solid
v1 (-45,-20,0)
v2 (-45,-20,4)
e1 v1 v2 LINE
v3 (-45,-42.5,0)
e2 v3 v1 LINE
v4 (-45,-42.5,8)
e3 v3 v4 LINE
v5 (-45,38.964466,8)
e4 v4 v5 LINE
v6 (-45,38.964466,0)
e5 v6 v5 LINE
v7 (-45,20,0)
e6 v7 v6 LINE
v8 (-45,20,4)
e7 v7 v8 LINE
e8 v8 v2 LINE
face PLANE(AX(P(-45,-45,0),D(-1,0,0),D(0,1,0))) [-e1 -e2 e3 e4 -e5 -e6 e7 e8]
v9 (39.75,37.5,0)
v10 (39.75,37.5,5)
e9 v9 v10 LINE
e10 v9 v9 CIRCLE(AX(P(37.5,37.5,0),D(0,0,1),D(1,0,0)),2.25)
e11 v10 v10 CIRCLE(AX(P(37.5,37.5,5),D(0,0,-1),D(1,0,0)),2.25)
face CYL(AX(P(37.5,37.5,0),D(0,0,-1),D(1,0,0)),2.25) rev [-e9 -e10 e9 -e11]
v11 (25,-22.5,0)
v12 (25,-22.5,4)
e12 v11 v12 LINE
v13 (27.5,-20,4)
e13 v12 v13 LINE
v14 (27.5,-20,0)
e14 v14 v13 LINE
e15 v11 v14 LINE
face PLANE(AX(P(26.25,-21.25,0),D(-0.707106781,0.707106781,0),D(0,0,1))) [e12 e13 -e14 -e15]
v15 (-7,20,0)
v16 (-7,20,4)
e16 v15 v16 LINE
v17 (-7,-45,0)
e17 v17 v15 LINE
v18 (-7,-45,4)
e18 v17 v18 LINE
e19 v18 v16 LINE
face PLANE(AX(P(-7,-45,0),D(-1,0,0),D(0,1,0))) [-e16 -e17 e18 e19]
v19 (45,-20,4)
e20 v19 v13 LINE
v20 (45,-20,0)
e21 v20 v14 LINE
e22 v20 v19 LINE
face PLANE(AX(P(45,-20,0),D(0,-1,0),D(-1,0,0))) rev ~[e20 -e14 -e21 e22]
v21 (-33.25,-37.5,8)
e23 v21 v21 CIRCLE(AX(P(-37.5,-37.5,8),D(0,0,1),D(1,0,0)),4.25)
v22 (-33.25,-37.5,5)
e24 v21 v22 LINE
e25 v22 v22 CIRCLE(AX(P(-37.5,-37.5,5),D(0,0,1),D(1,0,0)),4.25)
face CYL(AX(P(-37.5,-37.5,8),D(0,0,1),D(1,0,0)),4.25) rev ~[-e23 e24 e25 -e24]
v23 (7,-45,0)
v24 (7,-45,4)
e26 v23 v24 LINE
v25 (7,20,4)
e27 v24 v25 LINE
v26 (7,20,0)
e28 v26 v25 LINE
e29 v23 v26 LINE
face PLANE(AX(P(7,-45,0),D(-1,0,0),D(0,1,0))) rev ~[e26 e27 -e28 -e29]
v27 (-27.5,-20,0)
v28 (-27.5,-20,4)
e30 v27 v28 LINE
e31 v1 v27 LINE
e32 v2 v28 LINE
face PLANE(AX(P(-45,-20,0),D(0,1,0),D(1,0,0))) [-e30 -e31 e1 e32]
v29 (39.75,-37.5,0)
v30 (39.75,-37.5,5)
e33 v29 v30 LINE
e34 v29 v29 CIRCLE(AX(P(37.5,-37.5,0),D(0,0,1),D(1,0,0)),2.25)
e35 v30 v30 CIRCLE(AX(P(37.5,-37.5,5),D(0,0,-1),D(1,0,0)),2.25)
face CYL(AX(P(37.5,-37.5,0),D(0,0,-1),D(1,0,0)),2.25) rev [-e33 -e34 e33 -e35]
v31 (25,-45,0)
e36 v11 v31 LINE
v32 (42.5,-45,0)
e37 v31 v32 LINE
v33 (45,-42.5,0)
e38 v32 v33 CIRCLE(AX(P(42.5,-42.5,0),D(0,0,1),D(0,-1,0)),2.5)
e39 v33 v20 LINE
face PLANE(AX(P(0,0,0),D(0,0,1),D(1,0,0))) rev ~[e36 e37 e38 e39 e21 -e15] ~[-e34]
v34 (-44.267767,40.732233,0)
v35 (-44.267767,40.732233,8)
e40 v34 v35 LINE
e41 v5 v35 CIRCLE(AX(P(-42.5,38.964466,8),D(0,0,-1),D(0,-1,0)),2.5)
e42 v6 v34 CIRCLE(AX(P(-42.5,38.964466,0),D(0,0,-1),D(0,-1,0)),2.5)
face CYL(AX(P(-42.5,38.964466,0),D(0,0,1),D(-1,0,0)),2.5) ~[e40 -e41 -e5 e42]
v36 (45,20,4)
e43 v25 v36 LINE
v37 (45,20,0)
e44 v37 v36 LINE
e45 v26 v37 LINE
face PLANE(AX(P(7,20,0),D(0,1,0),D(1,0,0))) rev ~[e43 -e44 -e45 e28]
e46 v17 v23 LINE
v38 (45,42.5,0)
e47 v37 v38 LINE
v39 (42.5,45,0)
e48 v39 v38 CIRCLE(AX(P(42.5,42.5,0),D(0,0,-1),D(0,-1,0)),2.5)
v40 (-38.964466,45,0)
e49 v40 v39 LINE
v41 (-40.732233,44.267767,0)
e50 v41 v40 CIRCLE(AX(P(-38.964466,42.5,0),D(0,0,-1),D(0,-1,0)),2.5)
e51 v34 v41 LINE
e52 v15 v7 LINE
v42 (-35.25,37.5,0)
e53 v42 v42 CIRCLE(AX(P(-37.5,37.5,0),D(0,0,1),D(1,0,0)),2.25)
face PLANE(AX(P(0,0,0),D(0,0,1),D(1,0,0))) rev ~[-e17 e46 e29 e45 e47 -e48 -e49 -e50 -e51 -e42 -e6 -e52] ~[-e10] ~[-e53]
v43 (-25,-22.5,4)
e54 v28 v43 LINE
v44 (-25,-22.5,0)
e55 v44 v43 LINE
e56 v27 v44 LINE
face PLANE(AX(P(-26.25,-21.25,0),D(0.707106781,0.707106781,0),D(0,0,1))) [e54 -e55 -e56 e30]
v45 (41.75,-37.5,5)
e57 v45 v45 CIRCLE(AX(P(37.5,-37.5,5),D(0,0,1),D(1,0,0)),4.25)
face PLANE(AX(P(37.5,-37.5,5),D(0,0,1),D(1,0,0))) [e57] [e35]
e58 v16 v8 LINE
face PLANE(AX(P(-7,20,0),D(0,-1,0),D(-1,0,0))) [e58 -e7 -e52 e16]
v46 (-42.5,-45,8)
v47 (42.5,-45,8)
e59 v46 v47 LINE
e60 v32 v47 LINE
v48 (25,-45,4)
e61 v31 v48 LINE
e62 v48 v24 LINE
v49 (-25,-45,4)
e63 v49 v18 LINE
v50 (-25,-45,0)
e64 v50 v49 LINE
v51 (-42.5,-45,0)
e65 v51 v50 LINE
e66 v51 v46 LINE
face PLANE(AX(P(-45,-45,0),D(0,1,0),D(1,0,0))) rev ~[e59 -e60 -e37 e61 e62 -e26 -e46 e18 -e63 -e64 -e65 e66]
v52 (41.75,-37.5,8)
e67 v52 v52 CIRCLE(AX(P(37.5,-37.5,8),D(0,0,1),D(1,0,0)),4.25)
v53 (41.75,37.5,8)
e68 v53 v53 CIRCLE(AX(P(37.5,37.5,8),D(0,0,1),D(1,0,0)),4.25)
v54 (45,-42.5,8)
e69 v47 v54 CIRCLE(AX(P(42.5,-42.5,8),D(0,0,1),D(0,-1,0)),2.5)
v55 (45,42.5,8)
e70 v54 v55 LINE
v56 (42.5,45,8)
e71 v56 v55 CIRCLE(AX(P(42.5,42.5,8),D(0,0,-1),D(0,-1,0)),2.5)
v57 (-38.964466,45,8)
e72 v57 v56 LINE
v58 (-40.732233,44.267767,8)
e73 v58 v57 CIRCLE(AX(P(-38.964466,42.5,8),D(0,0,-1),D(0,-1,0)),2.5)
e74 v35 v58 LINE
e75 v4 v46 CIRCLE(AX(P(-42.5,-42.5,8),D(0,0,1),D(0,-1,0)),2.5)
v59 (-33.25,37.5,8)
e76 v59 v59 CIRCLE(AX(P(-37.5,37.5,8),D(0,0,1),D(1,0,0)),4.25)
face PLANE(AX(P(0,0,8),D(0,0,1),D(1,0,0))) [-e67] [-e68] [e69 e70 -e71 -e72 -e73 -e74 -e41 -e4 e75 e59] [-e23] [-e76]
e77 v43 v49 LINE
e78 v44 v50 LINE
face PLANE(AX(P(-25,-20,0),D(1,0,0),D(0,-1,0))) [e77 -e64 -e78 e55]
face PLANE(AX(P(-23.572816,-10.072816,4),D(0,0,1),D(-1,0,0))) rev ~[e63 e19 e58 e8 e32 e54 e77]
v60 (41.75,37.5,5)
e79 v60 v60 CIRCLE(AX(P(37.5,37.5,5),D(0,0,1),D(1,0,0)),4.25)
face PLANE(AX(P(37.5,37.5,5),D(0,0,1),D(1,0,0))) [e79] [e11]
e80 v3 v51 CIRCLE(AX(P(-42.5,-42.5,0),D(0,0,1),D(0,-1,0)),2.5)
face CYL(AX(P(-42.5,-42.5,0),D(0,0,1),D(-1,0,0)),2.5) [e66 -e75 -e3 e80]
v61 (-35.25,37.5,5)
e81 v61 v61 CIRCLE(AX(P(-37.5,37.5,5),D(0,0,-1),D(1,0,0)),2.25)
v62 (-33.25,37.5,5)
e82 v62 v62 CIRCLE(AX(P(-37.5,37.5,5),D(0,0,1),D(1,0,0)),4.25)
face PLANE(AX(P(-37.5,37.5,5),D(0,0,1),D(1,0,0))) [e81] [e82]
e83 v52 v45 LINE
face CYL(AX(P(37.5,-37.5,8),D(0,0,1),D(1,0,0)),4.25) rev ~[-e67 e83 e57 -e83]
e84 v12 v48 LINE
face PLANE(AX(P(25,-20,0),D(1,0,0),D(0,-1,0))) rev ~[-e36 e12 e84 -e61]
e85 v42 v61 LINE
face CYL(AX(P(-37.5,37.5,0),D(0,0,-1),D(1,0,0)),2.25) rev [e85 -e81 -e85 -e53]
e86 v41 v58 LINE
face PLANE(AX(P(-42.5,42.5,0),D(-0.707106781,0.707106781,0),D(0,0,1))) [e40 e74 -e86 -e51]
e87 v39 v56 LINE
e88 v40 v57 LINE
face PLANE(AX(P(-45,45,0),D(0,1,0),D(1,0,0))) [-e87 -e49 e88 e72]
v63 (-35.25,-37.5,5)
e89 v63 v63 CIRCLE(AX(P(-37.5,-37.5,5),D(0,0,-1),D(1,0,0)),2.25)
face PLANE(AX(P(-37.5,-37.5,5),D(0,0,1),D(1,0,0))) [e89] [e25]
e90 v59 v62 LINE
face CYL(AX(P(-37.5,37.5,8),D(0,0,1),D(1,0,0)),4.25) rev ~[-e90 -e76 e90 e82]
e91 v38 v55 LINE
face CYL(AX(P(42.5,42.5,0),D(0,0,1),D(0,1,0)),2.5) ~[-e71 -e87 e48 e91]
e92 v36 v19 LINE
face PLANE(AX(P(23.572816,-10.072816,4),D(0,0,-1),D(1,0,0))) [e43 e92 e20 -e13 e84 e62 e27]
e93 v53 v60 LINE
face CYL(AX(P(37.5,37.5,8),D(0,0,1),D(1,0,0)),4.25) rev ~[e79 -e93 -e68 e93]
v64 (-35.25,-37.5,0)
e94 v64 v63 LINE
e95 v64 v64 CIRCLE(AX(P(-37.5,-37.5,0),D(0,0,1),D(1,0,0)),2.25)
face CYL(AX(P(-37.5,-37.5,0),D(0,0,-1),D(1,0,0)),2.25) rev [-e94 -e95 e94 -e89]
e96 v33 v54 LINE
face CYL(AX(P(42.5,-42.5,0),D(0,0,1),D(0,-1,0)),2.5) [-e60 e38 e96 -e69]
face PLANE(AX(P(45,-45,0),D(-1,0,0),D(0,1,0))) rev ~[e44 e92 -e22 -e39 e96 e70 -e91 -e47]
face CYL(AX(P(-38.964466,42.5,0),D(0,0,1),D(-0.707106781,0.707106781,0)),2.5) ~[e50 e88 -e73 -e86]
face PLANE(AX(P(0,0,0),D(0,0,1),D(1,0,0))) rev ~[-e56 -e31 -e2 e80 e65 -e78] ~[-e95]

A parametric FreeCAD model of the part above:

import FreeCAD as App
import Part
import Sketcher

V = App.Vector
Q = App.Units.Quantity


def edges_at(feature, points):
    """Names of the edges that pass closest to the given points."""
    edges = feature.Shape.Edges
    near = lambda p: min(range(len(edges)), key=lambda i: edges[i].distToShape(Part.Vertex(*p))[0])
    return sorted({f"Edge{near(p) + 1}" for p in points})


def add_polygon(sketch, points):
    """Adds a closed chain of lines whose ends are joined by coincident constraints."""
    first, n = sketch.GeometryCount, len(points)
    for a, b in zip(points, points[1:] + points[:1]):
        sketch.addGeometry(Part.LineSegment(App.Vector(*a, 0), App.Vector(*b, 0)), False)
    for i in range(n):
        sketch.addConstraint(Sketcher.Constraint("Coincident", first + i, 2, first + (i + 1) % n, 1))

doc = App.newDocument("Part")
params = doc.addObject("Spreadsheet::Sheet", "Params")
for row, (alias, value) in enumerate([
    ("sketch1_diameter", "4.5 mm"),
    ("sketch1_width", "90 mm"),
    ("pad1_length", "8 mm"),
    ("sketch2_diameter", "8.5 mm"),
    ("pocket1_length", "3 mm"),
    ("chamfer_size", "5 mm"),
    ("sketch3_width", "20 mm"),
    ("sketch3_width2", "38 mm"),
    ("sketch3_height", "40 mm"),
    ("sketch3_height2", "65 mm"),
    ("pocket2_length", "4 mm"),
    ("fillet_radius", "2.5 mm"),
    ("chamfer2_size", "2.5 mm"),
], start=1):
    params.set(f"A{row}", alias)
    params.set(f"B{row}", "=" + value)
    params.setAlias(f"B{row}", alias)

body = doc.addObject("PartDesign::Body", "Body")

# Sketch on XY plane
sketch1 = body.newObject("Sketcher::SketchObject", "Sketch")
sketch1.AttachmentSupport = (doc.getObject("XY_Plane"), [""])
sketch1.MapMode = "FlatFace"
add_polygon(sketch1, [(-45, 45), (-45, -45), (45, -45), (45, 45)])  # lines 0-3
sketch1.addGeometry(Part.Circle(V(-37.5, -37.5, 0), V(0, 0, 1), 2.25), False)  # 4
sketch1.addGeometry(Part.Circle(V(37.5, -37.5, 0), V(0, 0, 1), 2.25), False)  # 5
sketch1.addGeometry(Part.Circle(V(-37.5, 37.5, 0), V(0, 0, 1), 2.25), False)  # 6
sketch1.addGeometry(Part.Circle(V(37.5, 37.5, 0), V(0, 0, 1), 2.25), False)  # 7
sketch1.addConstraint(Sketcher.Constraint("Vertical", 0))
sketch1.addConstraint(Sketcher.Constraint("Horizontal", 1))
sketch1.addConstraint(Sketcher.Constraint("Vertical", 2))
sketch1.addConstraint(Sketcher.Constraint("Horizontal", 3))
sketch1.addConstraint(Sketcher.Constraint("Equal", 4, 5))
sketch1.addConstraint(Sketcher.Constraint("Equal", 5, 6))
sketch1.addConstraint(Sketcher.Constraint("Equal", 6, 7))
sketch1.addConstraint(Sketcher.Constraint("Symmetric", 5, 3, 6, 3, -1, 1))
sketch1.addConstraint(Sketcher.Constraint("Symmetric", 4, 3, 7, 3, -1, 1))
sketch1.addConstraint(Sketcher.Constraint("Symmetric", 0, 2, 2, 2, -1, 1))
sketch1.addConstraint(Sketcher.Constraint("Symmetric", 4, 3, 5, 3, -2))
sketch1.addConstraint(Sketcher.Constraint("Equal", 3, 0))
sketch1.addConstraint(Sketcher.Constraint("Diameter", 4, Q("4.5 mm")))
sketch1.addConstraint(Sketcher.Constraint("DistanceX", 1, 1, 1, 2, Q("90 mm")))
sketch1.addConstraint(Sketcher.Constraint("DistanceX", 4, 3, 5, 3, Q("75 mm")))
sketch1.addConstraint(Sketcher.Constraint("DistanceY", 4, 3, 6, 3, Q("75 mm")))
sketch1.setExpression("Constraints[16]", "Params.sketch1_diameter")
sketch1.setExpression("Constraints[17]", "Params.sketch1_width")
pad1 = body.newObject("PartDesign::Pad", "Pad")
pad1.Profile = sketch1
pad1.setExpression("Length", "Params.pad1_length")

# Sketch on XY plane
sketch2 = body.newObject("Sketcher::SketchObject", "Sketch001")
sketch2.AttachmentSupport = (doc.getObject("XY_Plane"), [""])
sketch2.MapMode = "FlatFace"
sketch2.AttachmentOffset = App.Placement(V(0, 0, 8), App.Rotation())
sketch2.addGeometry(Part.Circle(V(-37.5, 37.5, 0), V(0, 0, 1), 4.25), False)
sketch2.addGeometry(Part.Circle(V(37.5, 37.5, 0), V(0, 0, 1), 4.25), False)
sketch2.addGeometry(Part.Circle(V(-37.5, -37.5, 0), V(0, 0, 1), 4.25), False)
sketch2.addGeometry(Part.Circle(V(37.5, -37.5, 0), V(0, 0, 1), 4.25), False)
sketch2.addConstraint(Sketcher.Constraint("Equal", 0, 1))
sketch2.addConstraint(Sketcher.Constraint("Equal", 1, 2))
sketch2.addConstraint(Sketcher.Constraint("Equal", 2, 3))
sketch2.addConstraint(Sketcher.Constraint("Symmetric", 1, 3, 2, 3, -1, 1))
sketch2.addConstraint(Sketcher.Constraint("Symmetric", 0, 3, 3, 3, -1, 1))
sketch2.addConstraint(Sketcher.Constraint("Symmetric", 0, 3, 1, 3, -2))
sketch2.addConstraint(Sketcher.Constraint("Diameter", 0, Q("8.5 mm")))
sketch2.addConstraint(Sketcher.Constraint("DistanceX", 0, 3, 1, 3, Q("75 mm")))
sketch2.addConstraint(Sketcher.Constraint("DistanceY", 2, 3, 0, 3, Q("75 mm")))
sketch2.setExpression("Constraints[6]", "Params.sketch2_diameter")
pocket1 = body.newObject("PartDesign::Pocket", "Pocket")
pocket1.Profile = sketch2
pocket1.setExpression("Length", "Params.pocket1_length")
doc.recompute()

chamfer = body.newObject("PartDesign::Chamfer", "Chamfer")
chamfer.Base = (pocket1, edges_at(pocket1, [(-45, 45, 4)]))
chamfer.setExpression("Size", "Params.chamfer_size")

# Sketch on XY plane
sketch3 = body.newObject("Sketcher::SketchObject", "Sketch002")
sketch3.AttachmentSupport = (doc.getObject("XY_Plane"), [""])
sketch3.MapMode = "FlatFace"
add_polygon(sketch3, [(-25, -20), (-45, -20), (-45, 20), (-7, 20), (-7, -45), (-25, -45)])  # lines 0-5
add_polygon(sketch3, [(45, -20), (25, -20), (25, -45), (7, -45), (7, 20), (45, 20)])  # lines 6-11
sketch3.addConstraint(Sketcher.Constraint("Horizontal", 0))
sketch3.addConstraint(Sketcher.Constraint("Vertical", 1))
sketch3.addConstraint(Sketcher.Constraint("Horizontal", 2))
sketch3.addConstraint(Sketcher.Constraint("Vertical", 3))
sketch3.addConstraint(Sketcher.Constraint("Horizontal", 4))
sketch3.addConstraint(Sketcher.Constraint("Vertical", 5))
sketch3.addConstraint(Sketcher.Constraint("Horizontal", 6))
sketch3.addConstraint(Sketcher.Constraint("Vertical", 7))
sketch3.addConstraint(Sketcher.Constraint("Horizontal", 8))
sketch3.addConstraint(Sketcher.Constraint("Vertical", 9))
sketch3.addConstraint(Sketcher.Constraint("Horizontal", 10))
sketch3.addConstraint(Sketcher.Constraint("Vertical", 11))
sketch3.addConstraint(Sketcher.Constraint("Symmetric", 0, 2, 10, 2, -1, 1))
sketch3.addConstraint(Sketcher.Constraint("Symmetric", 5, 2, 6, 2, -2))
sketch3.addConstraint(Sketcher.Constraint("Symmetric", 3, 2, 8, 2, -2))
sketch3.addConstraint(Sketcher.Constraint("Horizontal", 2, 2, 9, 2))
sketch3.addConstraint(Sketcher.Constraint("DistanceX", 0, 2, 0, 1, Q("20 mm")))
sketch3.addConstraint(Sketcher.Constraint("DistanceX", 2, 1, 2, 2, Q("38 mm")))
sketch3.addConstraint(Sketcher.Constraint("DistanceY", 1, 1, 1, 2, Q("40 mm")))
sketch3.addConstraint(Sketcher.Constraint("DistanceY", 3, 2, 3, 1, Q("65 mm")))
sketch3.addConstraint(Sketcher.Constraint("DistanceX", 0, 2, -1, 1, Q("45 mm")))
sketch3.setExpression("Constraints[28]", "Params.sketch3_width")
sketch3.setExpression("Constraints[29]", "Params.sketch3_width2")
sketch3.setExpression("Constraints[30]", "Params.sketch3_height")
sketch3.setExpression("Constraints[31]", "Params.sketch3_height2")
pocket2 = body.newObject("PartDesign::Pocket", "Pocket001")
pocket2.Profile = sketch3
pocket2.setExpression("Length", "Params.pocket2_length")
pocket2.Reversed = True
doc.recompute()

fillet = body.newObject("PartDesign::Fillet", "Fillet")
fillet.Base = (pocket2, edges_at(pocket2, [
    (45, -45, 4),
    (45, 45, 4),
    (-45, -45, 4),
    (-40, 45, 4),
    (-45, 40, 4),
]))
fillet.setExpression("Radius", "Params.fillet_radius")
doc.recompute()

chamfer2 = body.newObject("PartDesign::Chamfer", "Chamfer001")
chamfer2.Base = (fillet, edges_at(fillet, [(25, -20, 2), (-25, -20, 2)]))
chamfer2.setExpression("Size", "Params.chamfer2_size")

doc.recompute()
